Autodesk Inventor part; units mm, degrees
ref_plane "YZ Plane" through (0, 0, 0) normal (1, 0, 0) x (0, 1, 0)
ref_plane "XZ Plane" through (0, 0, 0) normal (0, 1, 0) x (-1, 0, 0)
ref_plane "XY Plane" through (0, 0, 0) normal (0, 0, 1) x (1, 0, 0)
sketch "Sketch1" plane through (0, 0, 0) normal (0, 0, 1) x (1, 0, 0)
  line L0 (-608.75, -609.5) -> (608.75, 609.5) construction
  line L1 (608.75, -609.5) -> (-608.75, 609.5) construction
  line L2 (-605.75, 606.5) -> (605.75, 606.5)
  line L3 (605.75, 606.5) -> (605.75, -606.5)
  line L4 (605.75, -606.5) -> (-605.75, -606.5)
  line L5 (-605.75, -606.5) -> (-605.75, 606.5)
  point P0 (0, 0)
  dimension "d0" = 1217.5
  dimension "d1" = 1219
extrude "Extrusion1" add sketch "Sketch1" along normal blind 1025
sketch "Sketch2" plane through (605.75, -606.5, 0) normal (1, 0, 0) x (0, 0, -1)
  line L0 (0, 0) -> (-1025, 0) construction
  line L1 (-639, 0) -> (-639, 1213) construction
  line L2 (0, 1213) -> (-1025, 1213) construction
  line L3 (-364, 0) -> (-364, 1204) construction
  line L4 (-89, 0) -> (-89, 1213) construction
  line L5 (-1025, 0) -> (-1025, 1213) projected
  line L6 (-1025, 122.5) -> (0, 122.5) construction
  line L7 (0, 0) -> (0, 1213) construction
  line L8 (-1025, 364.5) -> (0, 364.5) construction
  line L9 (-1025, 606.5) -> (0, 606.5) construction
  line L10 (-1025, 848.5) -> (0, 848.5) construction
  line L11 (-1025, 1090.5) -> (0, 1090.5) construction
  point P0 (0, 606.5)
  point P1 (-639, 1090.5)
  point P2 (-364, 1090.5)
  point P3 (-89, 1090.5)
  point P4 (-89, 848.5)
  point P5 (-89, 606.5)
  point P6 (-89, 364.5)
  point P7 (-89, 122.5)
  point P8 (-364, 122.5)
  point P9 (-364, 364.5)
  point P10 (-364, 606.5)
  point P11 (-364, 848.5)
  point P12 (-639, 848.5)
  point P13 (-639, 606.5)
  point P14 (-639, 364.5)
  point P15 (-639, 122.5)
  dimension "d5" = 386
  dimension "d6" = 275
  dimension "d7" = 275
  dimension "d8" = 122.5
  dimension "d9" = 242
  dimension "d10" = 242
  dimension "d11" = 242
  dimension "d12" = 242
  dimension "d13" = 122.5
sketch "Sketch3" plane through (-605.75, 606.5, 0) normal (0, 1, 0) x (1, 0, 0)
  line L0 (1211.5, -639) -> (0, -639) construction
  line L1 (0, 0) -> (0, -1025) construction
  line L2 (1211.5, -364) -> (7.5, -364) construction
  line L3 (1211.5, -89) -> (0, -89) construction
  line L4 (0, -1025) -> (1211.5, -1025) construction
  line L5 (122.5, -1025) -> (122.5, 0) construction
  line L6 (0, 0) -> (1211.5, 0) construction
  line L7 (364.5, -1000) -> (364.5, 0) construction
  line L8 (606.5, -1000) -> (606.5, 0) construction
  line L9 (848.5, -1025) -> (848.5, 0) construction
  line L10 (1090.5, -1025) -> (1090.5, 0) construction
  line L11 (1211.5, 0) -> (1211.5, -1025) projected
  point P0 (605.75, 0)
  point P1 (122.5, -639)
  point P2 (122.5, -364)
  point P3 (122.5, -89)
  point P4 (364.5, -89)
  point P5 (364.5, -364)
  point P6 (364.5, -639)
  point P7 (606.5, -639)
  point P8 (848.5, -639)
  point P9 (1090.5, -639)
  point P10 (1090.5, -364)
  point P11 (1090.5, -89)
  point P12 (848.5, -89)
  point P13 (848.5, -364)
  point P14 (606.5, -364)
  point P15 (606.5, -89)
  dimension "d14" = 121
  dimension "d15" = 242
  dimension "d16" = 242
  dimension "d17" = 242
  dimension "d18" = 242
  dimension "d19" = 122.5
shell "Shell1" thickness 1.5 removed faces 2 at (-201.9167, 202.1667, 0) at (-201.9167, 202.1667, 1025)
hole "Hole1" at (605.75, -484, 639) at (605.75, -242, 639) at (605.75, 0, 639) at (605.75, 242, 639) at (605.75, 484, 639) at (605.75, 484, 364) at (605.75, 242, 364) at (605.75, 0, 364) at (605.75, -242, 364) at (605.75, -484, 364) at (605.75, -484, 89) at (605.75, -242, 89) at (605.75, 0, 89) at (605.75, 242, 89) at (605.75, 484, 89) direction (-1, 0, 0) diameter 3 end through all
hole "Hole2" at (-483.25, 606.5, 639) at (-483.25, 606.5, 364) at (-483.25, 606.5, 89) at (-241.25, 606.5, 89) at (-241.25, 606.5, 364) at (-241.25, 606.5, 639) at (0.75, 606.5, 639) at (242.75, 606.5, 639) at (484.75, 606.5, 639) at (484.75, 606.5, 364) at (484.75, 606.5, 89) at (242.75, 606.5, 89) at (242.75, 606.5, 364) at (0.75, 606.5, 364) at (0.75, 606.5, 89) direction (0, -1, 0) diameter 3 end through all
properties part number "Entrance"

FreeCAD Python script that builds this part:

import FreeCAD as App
import Part
import Sketcher
from FreeCAD import Vector


def faces_at(feature, points):
    """Names of the faces that lie closest to the given points."""
    faces = feature.Shape.Faces
    near = lambda p: min(range(len(faces)), key=lambda i: faces[i].distToShape(Part.Vertex(*p))[0])
    return sorted({f"Face{near(p) + 1}" for p in points})

doc = App.newDocument("Part")
params = doc.addObject("Spreadsheet::Sheet", "Params")
for row, (alias, value) in enumerate([
    ("sketch1_height", "1213 mm"),
    ("sketch1_width", "1211.5 mm"),
    ("pad1_length", "1025 mm"),
    ("thickness_wall", "1.5 mm"),
    ("sketch2_diameter", "3 mm"),
    ("hole_diameter", "3 mm"),
    ("sketch3_diameter", "3 mm"),
    ("hole2_diameter", "3 mm"),
], start=1):
    params.set(f"A{row}", alias)
    params.set(f"B{row}", "=" + value)
    params.setAlias(f"B{row}", alias)

body = doc.addObject("PartDesign::Body", "Body")

sketch1 = doc.addObject("Sketcher::SketchObject", "Sketch")
body.addObject(sketch1)
sketch1.AttachmentSupport = (doc.XY_Plane, [""])
sketch1.MapMode = "FlatFace"
sketch1.addGeometry(Part.LineSegment(Vector(605.75, 606.5, 0), Vector(-605.75, 606.5, 0)), False)
sketch1.addGeometry(Part.LineSegment(Vector(-605.75, 606.5, 0), Vector(-605.75, -606.5, 0)), False)
sketch1.addGeometry(Part.LineSegment(Vector(-605.75, -606.5, 0), Vector(605.75, -606.5, 0)), False)
sketch1.addGeometry(Part.LineSegment(Vector(605.75, -606.5, 0), Vector(605.75, 606.5, 0)), False)
sketch1.addConstraint(Sketcher.Constraint("Coincident", 0, 2, 1, 1))
sketch1.addConstraint(Sketcher.Constraint("Coincident", 1, 2, 2, 1))
sketch1.addConstraint(Sketcher.Constraint("Coincident", 2, 2, 3, 1))
sketch1.addConstraint(Sketcher.Constraint("Coincident", 3, 2, 0, 1))
sketch1.addConstraint(Sketcher.Constraint("Horizontal", 0))
sketch1.addConstraint(Sketcher.Constraint("Vertical", 1))
sketch1.addConstraint(Sketcher.Constraint("Horizontal", 2))
sketch1.addConstraint(Sketcher.Constraint("Vertical", 3))
sketch1.addConstraint(Sketcher.Constraint("Symmetric", 0, 2, 2, 2, -1, 1))
sketch1.addConstraint(Sketcher.Constraint("DistanceY", 1, 2, 1, 1, 1213.0))
sketch1.addConstraint(Sketcher.Constraint("DistanceX", 0, 2, 0, 1, 1211.5))
sketch1.setExpression("Constraints[9]", "Params.sketch1_height")
sketch1.setExpression("Constraints[10]", "Params.sketch1_width")
pad1 = doc.addObject("PartDesign::Pad", "Pad")
body.addObject(pad1)
pad1.Profile = sketch1
pad1.setExpression("Length", "Params.pad1_length")
doc.recompute()

thickness = doc.addObject("PartDesign::Thickness", "Thickness")
body.addObject(thickness)
thickness.Base = (pad1, faces_at(pad1, [(-201.917, 202.167, 0), (-201.917, 202.167, 1025)]))
thickness.setExpression("Value", "Params.thickness_wall")
thickness.Reversed = True
thickness.Join = "Intersection"

sketch2 = doc.addObject("Sketcher::SketchObject", "Sketch001")
body.addObject(sketch2)
sketch2.AttachmentSupport = (doc.YZ_Plane, [""])
sketch2.MapMode = "FlatFace"
sketch2.AttachmentOffset = App.Placement(Vector(0, 0, 605.75), App.Rotation())
sketch2.addGeometry(Part.Circle(Vector(-484, 639, 0), Vector(0, 0, 1), 1.5), False)
sketch2.addGeometry(Part.Circle(Vector(-242, 639, 0), Vector(0, 0, 1), 1.5), False)
sketch2.addGeometry(Part.Circle(Vector(0, 639, 0), Vector(0, 0, 1), 1.5), False)
sketch2.addGeometry(Part.Circle(Vector(242, 639, 0), Vector(0, 0, 1), 1.5), False)
sketch2.addGeometry(Part.Circle(Vector(484, 639, 0), Vector(0, 0, 1), 1.5), False)
sketch2.addGeometry(Part.Circle(Vector(484, 364, 0), Vector(0, 0, 1), 1.5), False)
sketch2.addGeometry(Part.Circle(Vector(242, 364, 0), Vector(0, 0, 1), 1.5), False)
sketch2.addGeometry(Part.Circle(Vector(0, 364, 0), Vector(0, 0, 1), 1.5), False)
sketch2.addGeometry(Part.Circle(Vector(-242, 364, 0), Vector(0, 0, 1), 1.5), False)
sketch2.addGeometry(Part.Circle(Vector(-484, 364, 0), Vector(0, 0, 1), 1.5), False)
sketch2.addGeometry(Part.Circle(Vector(-484, 89, 0), Vector(0, 0, 1), 1.5), False)
sketch2.addGeometry(Part.Circle(Vector(-242, 89, 0), Vector(0, 0, 1), 1.5), False)
sketch2.addGeometry(Part.Circle(Vector(0, 89, 0), Vector(0, 0, 1), 1.5), False)
sketch2.addGeometry(Part.Circle(Vector(242, 89, 0), Vector(0, 0, 1), 1.5), False)
sketch2.addGeometry(Part.Circle(Vector(484, 89, 0), Vector(0, 0, 1), 1.5), False)
sketch2.addConstraint(Sketcher.Constraint("Equal", 0, 1))
sketch2.addConstraint(Sketcher.Constraint("Equal", 1, 2))
sketch2.addConstraint(Sketcher.Constraint("Equal", 2, 3))
sketch2.addConstraint(Sketcher.Constraint("Equal", 3, 4))
sketch2.addConstraint(Sketcher.Constraint("Equal", 4, 5))
sketch2.addConstraint(Sketcher.Constraint("Equal", 5, 6))
sketch2.addConstraint(Sketcher.Constraint("Equal", 6, 7))
sketch2.addConstraint(Sketcher.Constraint("Equal", 7, 8))
sketch2.addConstraint(Sketcher.Constraint("Equal", 8, 9))
sketch2.addConstraint(Sketcher.Constraint("Equal", 9, 10))
sketch2.addConstraint(Sketcher.Constraint("Equal", 10, 11))
sketch2.addConstraint(Sketcher.Constraint("Equal", 11, 12))
sketch2.addConstraint(Sketcher.Constraint("Equal", 12, 13))
sketch2.addConstraint(Sketcher.Constraint("Equal", 13, 14))
sketch2.addConstraint(Sketcher.Constraint("Symmetric", 1, 3, 3, 3, -2))
sketch2.addConstraint(Sketcher.Constraint("Symmetric", 0, 3, 4, 3, -2))
sketch2.addConstraint(Sketcher.Constraint("Symmetric", 6, 3, 8, 3, -2))
sketch2.addConstraint(Sketcher.Constraint("Symmetric", 5, 3, 9, 3, -2))
sketch2.addConstraint(Sketcher.Constraint("Symmetric", 11, 3, 13, 3, -2))
sketch2.addConstraint(Sketcher.Constraint("Symmetric", 10, 3, 14, 3, -2))
sketch2.addConstraint(Sketcher.Constraint("PointOnObject", 2, 3, -2))
sketch2.addConstraint(Sketcher.Constraint("PointOnObject", 7, 3, -2))
sketch2.addConstraint(Sketcher.Constraint("PointOnObject", 12, 3, -2))
sketch2.addConstraint(Sketcher.Constraint("Horizontal", 0, 3, 1, 3))
sketch2.addConstraint(Sketcher.Constraint("Horizontal", 1, 3, 2, 3))
sketch2.addConstraint(Sketcher.Constraint("Horizontal", 5, 3, 6, 3))
sketch2.addConstraint(Sketcher.Constraint("Horizontal", 6, 3, 7, 3))
sketch2.addConstraint(Sketcher.Constraint("Horizontal", 10, 3, 11, 3))
sketch2.addConstraint(Sketcher.Constraint("Horizontal", 11, 3, 12, 3))
sketch2.addConstraint(Sketcher.Constraint("Vertical", 4, 3, 5, 3))
sketch2.addConstraint(Sketcher.Constraint("Vertical", 3, 3, 6, 3))
sketch2.addConstraint(Sketcher.Constraint("Vertical", 9, 3, 10, 3))
sketch2.addConstraint(Sketcher.Constraint("Vertical", 8, 3, 11, 3))
sketch2.addConstraint(Sketcher.Constraint("Diameter", 0, 3.0))
sketch2.addConstraint(Sketcher.Constraint("DistanceX", 0, 3, -1, 1, 484.0))
sketch2.addConstraint(Sketcher.Constraint("DistanceY", -1, 1, 0, 3, 639.0))
sketch2.addConstraint(Sketcher.Constraint("DistanceX", 1, 3, -1, 1, 242.0))
sketch2.addConstraint(Sketcher.Constraint("DistanceY", -1, 1, 5, 3, 364.0))
sketch2.addConstraint(Sketcher.Constraint("DistanceY", -1, 1, 10, 3, 89.0))
sketch2.setExpression("Constraints[33]", "Params.sketch2_diameter")
doc.recompute()
hole = doc.addObject("PartDesign::Hole", "Hole")
body.addObject(hole)
hole.Profile = sketch2
hole.ThreadType = "None"
hole.setExpression("Diameter", "Params.hole_diameter")
hole.DepthType = "ThroughAll"

sketch3 = doc.addObject("Sketcher::SketchObject", "Sketch002")
body.addObject(sketch3)
sketch3.AttachmentSupport = (doc.XZ_Plane, [""])
sketch3.MapMode = "FlatFace"
sketch3.AttachmentOffset = App.Placement(Vector(0, 0, -606.5), App.Rotation())
sketch3.addGeometry(Part.Circle(Vector(-483.25, 639, 0), Vector(0, 0, 1), 1.5), False)
sketch3.addGeometry(Part.Circle(Vector(-483.25, 364, 0), Vector(0, 0, 1), 1.5), False)
sketch3.addGeometry(Part.Circle(Vector(-483.25, 89, 0), Vector(0, 0, 1), 1.5), False)
sketch3.addGeometry(Part.Circle(Vector(-241.25, 89, 0), Vector(0, 0, 1), 1.5), False)
sketch3.addGeometry(Part.Circle(Vector(-241.25, 364, 0), Vector(0, 0, 1), 1.5), False)
sketch3.addGeometry(Part.Circle(Vector(-241.25, 639, 0), Vector(0, 0, 1), 1.5), False)
sketch3.addGeometry(Part.Circle(Vector(0.75, 639, 0), Vector(0, 0, 1), 1.5), False)
sketch3.addGeometry(Part.Circle(Vector(242.75, 639, 0), Vector(0, 0, 1), 1.5), False)
sketch3.addGeometry(Part.Circle(Vector(484.75, 639, 0), Vector(0, 0, 1), 1.5), False)
sketch3.addGeometry(Part.Circle(Vector(484.75, 364, 0), Vector(0, 0, 1), 1.5), False)
sketch3.addGeometry(Part.Circle(Vector(484.75, 89, 0), Vector(0, 0, 1), 1.5), False)
sketch3.addGeometry(Part.Circle(Vector(242.75, 89, 0), Vector(0, 0, 1), 1.5), False)
sketch3.addGeometry(Part.Circle(Vector(242.75, 364, 0), Vector(0, 0, 1), 1.5), False)
sketch3.addGeometry(Part.Circle(Vector(0.75, 364, 0), Vector(0, 0, 1), 1.5), False)
sketch3.addGeometry(Part.Circle(Vector(0.75, 89, 0), Vector(0, 0, 1), 1.5), False)
sketch3.addConstraint(Sketcher.Constraint("Equal", 0, 1))
sketch3.addConstraint(Sketcher.Constraint("Equal", 1, 2))
sketch3.addConstraint(Sketcher.Constraint("Equal", 2, 3))
sketch3.addConstraint(Sketcher.Constraint("Equal", 3, 4))
sketch3.addConstraint(Sketcher.Constraint("Equal", 4, 5))
sketch3.addConstraint(Sketcher.Constraint("Equal", 5, 6))
sketch3.addConstraint(Sketcher.Constraint("Equal", 6, 7))
sketch3.addConstraint(Sketcher.Constraint("Equal", 7, 8))
sketch3.addConstraint(Sketcher.Constraint("Equal", 8, 9))
sketch3.addConstraint(Sketcher.Constraint("Equal", 9, 10))
sketch3.addConstraint(Sketcher.Constraint("Equal", 10, 11))
sketch3.addConstraint(Sketcher.Constraint("Equal", 11, 12))
sketch3.addConstraint(Sketcher.Constraint("Equal", 12, 13))
sketch3.addConstraint(Sketcher.Constraint("Equal", 13, 14))
sketch3.addConstraint(Sketcher.Constraint("Horizontal", 2, 3, 3, 3))
sketch3.addConstraint(Sketcher.Constraint("Horizontal", 1, 3, 4, 3))
sketch3.addConstraint(Sketcher.Constraint("Horizontal", 0, 3, 5, 3))
sketch3.addConstraint(Sketcher.Constraint("Horizontal", 5, 3, 6, 3))
sketch3.addConstraint(Sketcher.Constraint("Horizontal", 6, 3, 7, 3))
sketch3.addConstraint(Sketcher.Constraint("Horizontal", 7, 3, 8, 3))
sketch3.addConstraint(Sketcher.Constraint("Horizontal", 4, 3, 9, 3))
sketch3.addConstraint(Sketcher.Constraint("Horizontal", 3, 3, 10, 3))
sketch3.addConstraint(Sketcher.Constraint("Horizontal", 10, 3, 11, 3))
sketch3.addConstraint(Sketcher.Constraint("Horizontal", 9, 3, 12, 3))
sketch3.addConstraint(Sketcher.Constraint("Horizontal", 12, 3, 13, 3))
sketch3.addConstraint(Sketcher.Constraint("Horizontal", 11, 3, 14, 3))
sketch3.addConstraint(Sketcher.Constraint("Vertical", 0, 3, 1, 3))
sketch3.addConstraint(Sketcher.Constraint("Vertical", 1, 3, 2, 3))
sketch3.addConstraint(Sketcher.Constraint("Vertical", 3, 3, 4, 3))
sketch3.addConstraint(Sketcher.Constraint("Vertical", 4, 3, 5, 3))
sketch3.addConstraint(Sketcher.Constraint("Vertical", 8, 3, 9, 3))
sketch3.addConstraint(Sketcher.Constraint("Vertical", 9, 3, 10, 3))
sketch3.addConstraint(Sketcher.Constraint("Vertical", 7, 3, 11, 3))
sketch3.addConstraint(Sketcher.Constraint("Vertical", 11, 3, 12, 3))
sketch3.addConstraint(Sketcher.Constraint("Vertical", 6, 3, 13, 3))
sketch3.addConstraint(Sketcher.Constraint("Vertical", 13, 3, 14, 3))
sketch3.addConstraint(Sketcher.Constraint("Diameter", 0, 3.0))
sketch3.addConstraint(Sketcher.Constraint("DistanceY", -1, 1, 0, 3, 639.0))
sketch3.addConstraint(Sketcher.Constraint("DistanceY", -1, 1, 1, 3, 364.0))
sketch3.addConstraint(Sketcher.Constraint("DistanceY", -1, 1, 2, 3, 89.0))
sketch3.addConstraint(Sketcher.Constraint("DistanceX", 2, 3, 3, 3, 242.0))
sketch3.addConstraint(Sketcher.Constraint("DistanceX", 5, 3, 6, 3, 242.0))
sketch3.addConstraint(Sketcher.Constraint("DistanceX", 6, 3, 7, 3, 242.0))
sketch3.addConstraint(Sketcher.Constraint("DistanceX", 7, 3, 8, 3, 242.0))
sketch3.addConstraint(Sketcher.Constraint("DistanceX", 0, 3, -1, 1, 483.25))
sketch3.setExpression("Constraints[36]", "Params.sketch3_diameter")
doc.recompute()
hole2 = doc.addObject("PartDesign::Hole", "Hole001")
body.addObject(hole2)
hole2.Profile = sketch3
hole2.ThreadType = "None"
hole2.setExpression("Diameter", "Params.hole2_diameter")
hole2.DepthType = "ThroughAll"
hole2.Reversed = True

doc.recompute()
